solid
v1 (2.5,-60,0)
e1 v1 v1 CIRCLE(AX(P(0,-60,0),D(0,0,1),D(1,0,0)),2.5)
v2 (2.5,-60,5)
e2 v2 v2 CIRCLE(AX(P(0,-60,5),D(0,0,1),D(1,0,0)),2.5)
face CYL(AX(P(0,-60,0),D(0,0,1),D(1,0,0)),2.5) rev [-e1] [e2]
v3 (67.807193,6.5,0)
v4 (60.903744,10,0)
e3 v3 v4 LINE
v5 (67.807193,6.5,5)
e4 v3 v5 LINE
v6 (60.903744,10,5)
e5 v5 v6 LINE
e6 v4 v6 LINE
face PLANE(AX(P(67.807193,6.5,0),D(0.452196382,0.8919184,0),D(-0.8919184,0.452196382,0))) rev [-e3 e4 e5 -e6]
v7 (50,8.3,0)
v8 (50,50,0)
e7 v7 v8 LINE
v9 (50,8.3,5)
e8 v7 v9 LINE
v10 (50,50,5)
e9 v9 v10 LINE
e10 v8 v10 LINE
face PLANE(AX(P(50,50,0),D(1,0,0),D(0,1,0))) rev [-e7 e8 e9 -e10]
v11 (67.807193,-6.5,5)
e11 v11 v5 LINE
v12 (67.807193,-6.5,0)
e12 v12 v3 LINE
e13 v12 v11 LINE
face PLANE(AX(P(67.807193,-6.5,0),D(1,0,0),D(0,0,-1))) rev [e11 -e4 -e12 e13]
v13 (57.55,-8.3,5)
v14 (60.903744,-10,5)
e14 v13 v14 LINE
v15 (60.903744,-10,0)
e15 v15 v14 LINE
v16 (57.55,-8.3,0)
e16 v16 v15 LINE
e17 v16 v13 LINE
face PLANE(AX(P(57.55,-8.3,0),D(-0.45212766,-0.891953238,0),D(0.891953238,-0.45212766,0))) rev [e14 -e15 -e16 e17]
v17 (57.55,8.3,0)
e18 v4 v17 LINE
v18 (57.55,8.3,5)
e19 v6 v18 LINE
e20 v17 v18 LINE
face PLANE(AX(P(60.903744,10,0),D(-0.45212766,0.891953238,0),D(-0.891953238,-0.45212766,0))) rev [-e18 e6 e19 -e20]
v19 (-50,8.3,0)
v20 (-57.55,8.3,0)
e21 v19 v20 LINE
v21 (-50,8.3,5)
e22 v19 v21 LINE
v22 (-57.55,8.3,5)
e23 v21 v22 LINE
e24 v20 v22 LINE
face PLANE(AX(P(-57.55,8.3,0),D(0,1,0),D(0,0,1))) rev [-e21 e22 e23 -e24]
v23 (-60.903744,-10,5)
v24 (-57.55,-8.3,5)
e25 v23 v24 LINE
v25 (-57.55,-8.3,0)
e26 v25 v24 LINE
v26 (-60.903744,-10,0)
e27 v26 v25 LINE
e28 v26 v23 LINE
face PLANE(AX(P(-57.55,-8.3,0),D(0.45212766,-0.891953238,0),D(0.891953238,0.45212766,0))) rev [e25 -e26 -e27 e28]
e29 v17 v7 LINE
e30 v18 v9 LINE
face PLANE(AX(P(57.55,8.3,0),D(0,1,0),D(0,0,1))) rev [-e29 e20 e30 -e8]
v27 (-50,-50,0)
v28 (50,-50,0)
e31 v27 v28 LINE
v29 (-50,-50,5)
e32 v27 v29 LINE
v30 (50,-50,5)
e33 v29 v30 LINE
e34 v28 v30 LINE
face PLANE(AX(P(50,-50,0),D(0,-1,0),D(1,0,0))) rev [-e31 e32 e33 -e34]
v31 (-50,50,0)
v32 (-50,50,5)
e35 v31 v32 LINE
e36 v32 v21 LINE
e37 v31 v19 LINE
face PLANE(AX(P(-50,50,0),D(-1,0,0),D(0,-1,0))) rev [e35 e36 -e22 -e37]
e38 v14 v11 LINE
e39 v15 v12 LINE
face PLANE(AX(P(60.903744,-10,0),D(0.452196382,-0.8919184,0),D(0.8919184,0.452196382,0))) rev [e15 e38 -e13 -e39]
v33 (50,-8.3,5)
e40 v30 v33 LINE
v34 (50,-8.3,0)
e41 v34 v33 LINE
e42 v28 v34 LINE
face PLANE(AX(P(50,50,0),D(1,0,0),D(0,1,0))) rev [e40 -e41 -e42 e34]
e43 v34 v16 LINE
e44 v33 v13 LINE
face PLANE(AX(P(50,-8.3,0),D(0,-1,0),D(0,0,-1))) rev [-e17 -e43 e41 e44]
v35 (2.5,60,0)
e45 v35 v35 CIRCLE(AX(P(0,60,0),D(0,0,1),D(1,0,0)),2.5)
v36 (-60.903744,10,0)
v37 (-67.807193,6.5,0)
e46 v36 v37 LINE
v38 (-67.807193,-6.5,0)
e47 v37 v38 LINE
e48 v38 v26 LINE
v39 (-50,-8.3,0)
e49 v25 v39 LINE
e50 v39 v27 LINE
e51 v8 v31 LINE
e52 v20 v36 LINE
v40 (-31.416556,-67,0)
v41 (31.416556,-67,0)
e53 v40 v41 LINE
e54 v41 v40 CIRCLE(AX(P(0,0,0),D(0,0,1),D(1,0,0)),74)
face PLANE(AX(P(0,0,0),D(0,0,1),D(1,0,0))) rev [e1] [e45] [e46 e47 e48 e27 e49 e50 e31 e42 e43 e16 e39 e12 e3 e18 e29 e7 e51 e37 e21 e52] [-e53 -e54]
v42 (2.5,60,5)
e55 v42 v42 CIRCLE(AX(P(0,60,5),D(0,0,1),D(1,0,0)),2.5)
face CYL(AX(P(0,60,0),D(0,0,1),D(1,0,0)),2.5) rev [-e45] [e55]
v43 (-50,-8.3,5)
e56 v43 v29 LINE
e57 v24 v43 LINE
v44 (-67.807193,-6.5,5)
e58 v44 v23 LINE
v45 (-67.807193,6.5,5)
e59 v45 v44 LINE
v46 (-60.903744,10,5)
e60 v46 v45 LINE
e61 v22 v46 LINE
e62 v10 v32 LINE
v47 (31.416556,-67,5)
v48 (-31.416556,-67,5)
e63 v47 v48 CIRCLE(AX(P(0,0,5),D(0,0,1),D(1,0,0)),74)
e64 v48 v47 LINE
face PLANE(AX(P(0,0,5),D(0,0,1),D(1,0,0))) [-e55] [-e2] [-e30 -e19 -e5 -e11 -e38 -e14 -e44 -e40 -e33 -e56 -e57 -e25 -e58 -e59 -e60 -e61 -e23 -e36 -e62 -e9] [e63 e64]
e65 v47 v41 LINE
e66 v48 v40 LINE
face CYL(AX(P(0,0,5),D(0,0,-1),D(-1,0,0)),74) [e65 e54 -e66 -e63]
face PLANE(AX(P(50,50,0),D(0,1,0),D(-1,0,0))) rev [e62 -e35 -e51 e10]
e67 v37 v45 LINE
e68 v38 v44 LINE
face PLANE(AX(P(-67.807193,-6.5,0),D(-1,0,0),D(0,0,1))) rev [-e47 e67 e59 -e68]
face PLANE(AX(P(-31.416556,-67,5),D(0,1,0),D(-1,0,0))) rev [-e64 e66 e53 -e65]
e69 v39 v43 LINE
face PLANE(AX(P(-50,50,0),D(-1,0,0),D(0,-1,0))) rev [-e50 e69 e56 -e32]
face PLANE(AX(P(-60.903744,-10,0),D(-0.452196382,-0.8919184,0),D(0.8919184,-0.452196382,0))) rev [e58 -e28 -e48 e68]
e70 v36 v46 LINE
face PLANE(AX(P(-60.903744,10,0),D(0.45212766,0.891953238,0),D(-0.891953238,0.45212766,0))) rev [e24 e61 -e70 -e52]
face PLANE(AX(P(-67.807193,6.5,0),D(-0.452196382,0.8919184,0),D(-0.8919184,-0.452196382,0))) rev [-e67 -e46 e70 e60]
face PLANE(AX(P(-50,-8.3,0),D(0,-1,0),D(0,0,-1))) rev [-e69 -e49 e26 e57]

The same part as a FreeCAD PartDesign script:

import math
import FreeCAD as App
import Part
import Sketcher

V = App.Vector


def add_polygon(sketch, points):
    """Adds a closed chain of lines whose ends are joined by coincident constraints."""
    first, n = sketch.GeometryCount, len(points)
    for a, b in zip(points, points[1:] + points[:1]):
        sketch.addGeometry(Part.LineSegment(App.Vector(*a, 0), App.Vector(*b, 0)), False)
    for i in range(n):
        sketch.addConstraint(Sketcher.Constraint("Coincident", first + i, 2, first + (i + 1) % n, 1))

doc = App.newDocument("Part")
body = doc.addObject("PartDesign::Body", "Body")

sketch1 = body.newObject("Sketcher::SketchObject", "Sketch")
sketch1.AttachmentSupport = (doc.getObject("XY_Plane"), [""])
sketch1.MapMode = "FlatFace"
sketch1.addGeometry([
    Part.LineSegment(V(-31, -67, 0), V(31, -67, 0)),
    Part.ArcOfCircle(Part.Circle(V(0, 0, 0), V(0, 0, 1), 74), math.radians(-65), math.radians(245)),
], False)
sketch1.addConstraint([
    Sketcher.Constraint("Coincident", 0, 1, 1, 2),
    Sketcher.Constraint("Coincident", 1, 1, 0, 2),
    Sketcher.Constraint("Horizontal", 0),
    Sketcher.Constraint("Coincident", 1, 3, -1, 1),
    Sketcher.Constraint("Radius", 1, 74.0),
    Sketcher.Constraint("DistanceY", 0, 1, -1, 1, 67.0),
])
pad1 = body.newObject("PartDesign::Pad", "Pad")
pad1.Profile = sketch1
pad1.Length = 5

sketch2 = body.newObject("Sketcher::SketchObject", "Sketch001")
sketch2.AttachmentSupport = (doc.getObject("XY_Plane"), [""])
sketch2.MapMode = "FlatFace"
sketch2.AttachmentOffset = App.Placement(V(0, 0, 5), App.Rotation())
add_polygon(sketch2, [(-50, 50), (-50, -50), (50, -50), (50, 50)])
sketch2.addConstraint([
    Sketcher.Constraint("Vertical", 0),
    Sketcher.Constraint("Horizontal", 1),
    Sketcher.Constraint("Vertical", 2),
    Sketcher.Constraint("Horizontal", 3),
    Sketcher.Constraint("Symmetric", 0, 2, 2, 2, -1, 1),
    Sketcher.Constraint("Equal", 3, 0),
    Sketcher.Constraint("DistanceX", 1, 1, 1, 2, 100.0),
])
pocket1 = body.newObject("PartDesign::Pocket", "Pocket")
pocket1.Profile = sketch2
pocket1.Length = 5

sketch3 = body.newObject("Sketcher::SketchObject", "Sketch002")
sketch3.AttachmentSupport = (doc.getObject("XY_Plane"), [""])
sketch3.MapMode = "FlatFace"
sketch3.AttachmentOffset = App.Placement(V(0, 0, 5), App.Rotation())
sketch3.addGeometry([
    Part.Circle(V(0, 60, 0), V(0, 0, 1), 2.5),
    Part.Circle(V(0, -60, 0), V(0, 0, 1), 2.5),
], False)
sketch3.addConstraint([
    Sketcher.Constraint("Equal", 0, 1),
    Sketcher.Constraint("Symmetric", 0, 3, 1, 3, -1, 1),
    Sketcher.Constraint("PointOnObject", 0, 3, -2),
    Sketcher.Constraint("Diameter", 0, 5.0),
    Sketcher.Constraint("DistanceY", -1, 1, 0, 3, 60.0),
])
pocket2 = body.newObject("PartDesign::Pocket", "Pocket001")
pocket2.Profile = sketch3
pocket2.Length = 5

sketch4 = body.newObject("Sketcher::SketchObject", "Sketch003")
sketch4.AttachmentSupport = (doc.getObject("XY_Plane"), [""])
sketch4.MapMode = "FlatFace"
sketch4.AttachmentOffset = App.Placement(V(0, 0, 5), App.Rotation())
add_polygon(sketch4, [(-50, -8.3), (-50, 8.3), (-57.5, 8.3), (-60.9, 10), (-67.8, 6.5), (-67.8, -6.5), (-60.9, -10), (-57.5, -8.3)])
add_polygon(sketch4, [(57.5, 8.3), (50, 8.3), (50, -8.3), (57.5, -8.3), (60.9, -10), (67.8, -6.5), (67.8, 6.5), (60.9, 10)])
sketch4.addConstraint([
    Sketcher.Constraint("Vertical", 0),
    Sketcher.Constraint("Horizontal", 1),
    Sketcher.Constraint("Vertical", 4),
    Sketcher.Constraint("Horizontal", 7),
    Sketcher.Constraint("Horizontal", 8),
    Sketcher.Constraint("Vertical", 9),
    Sketcher.Constraint("Horizontal", 10),
    Sketcher.Constraint("Vertical", 13),
    Sketcher.Constraint("Symmetric", 7, 2, 8, 2, -1, 1),
    Sketcher.Constraint("Symmetric", 1, 2, 10, 2, -1, 1),
    Sketcher.Constraint("Symmetric", 2, 2, 11, 2, -1, 1),
    Sketcher.Constraint("Symmetric", 3, 2, 12, 2, -1, 1),
    Sketcher.Constraint("Symmetric", 5, 2, 14, 2, -1, 1),
    Sketcher.Constraint("Symmetric", 6, 2, 10, 2, -2),
    Sketcher.Constraint("Symmetric", 5, 2, 11, 2, -2),
    Sketcher.Constraint("Parallel", 5, 14),
    Sketcher.Constraint("Parallel", 6, 15),
    Sketcher.Constraint("Horizontal", 4, 2, 12, 2),
    Sketcher.Constraint("DistanceY", 4, 2, 4, 1, 13.0),
    Sketcher.Constraint("DistanceY", 0, 1, 0, 2, 16.6),
    Sketcher.Constraint("DistanceX", 0, 2, -1, 1, 50.0),
    Sketcher.Constraint("DistanceY", -1, 1, 2, 2, 10.0),
    Sketcher.Constraint("DistanceX", 1, 2, 1, 1, 7.55),
    Sketcher.Constraint("Distance", 2, 3.76),
    Sketcher.Constraint("Distance", 3, 7.74),
])
pocket3 = body.newObject("PartDesign::Pocket", "Pocket002")
pocket3.Profile = sketch4
pocket3.Length = 5

doc.recompute()
